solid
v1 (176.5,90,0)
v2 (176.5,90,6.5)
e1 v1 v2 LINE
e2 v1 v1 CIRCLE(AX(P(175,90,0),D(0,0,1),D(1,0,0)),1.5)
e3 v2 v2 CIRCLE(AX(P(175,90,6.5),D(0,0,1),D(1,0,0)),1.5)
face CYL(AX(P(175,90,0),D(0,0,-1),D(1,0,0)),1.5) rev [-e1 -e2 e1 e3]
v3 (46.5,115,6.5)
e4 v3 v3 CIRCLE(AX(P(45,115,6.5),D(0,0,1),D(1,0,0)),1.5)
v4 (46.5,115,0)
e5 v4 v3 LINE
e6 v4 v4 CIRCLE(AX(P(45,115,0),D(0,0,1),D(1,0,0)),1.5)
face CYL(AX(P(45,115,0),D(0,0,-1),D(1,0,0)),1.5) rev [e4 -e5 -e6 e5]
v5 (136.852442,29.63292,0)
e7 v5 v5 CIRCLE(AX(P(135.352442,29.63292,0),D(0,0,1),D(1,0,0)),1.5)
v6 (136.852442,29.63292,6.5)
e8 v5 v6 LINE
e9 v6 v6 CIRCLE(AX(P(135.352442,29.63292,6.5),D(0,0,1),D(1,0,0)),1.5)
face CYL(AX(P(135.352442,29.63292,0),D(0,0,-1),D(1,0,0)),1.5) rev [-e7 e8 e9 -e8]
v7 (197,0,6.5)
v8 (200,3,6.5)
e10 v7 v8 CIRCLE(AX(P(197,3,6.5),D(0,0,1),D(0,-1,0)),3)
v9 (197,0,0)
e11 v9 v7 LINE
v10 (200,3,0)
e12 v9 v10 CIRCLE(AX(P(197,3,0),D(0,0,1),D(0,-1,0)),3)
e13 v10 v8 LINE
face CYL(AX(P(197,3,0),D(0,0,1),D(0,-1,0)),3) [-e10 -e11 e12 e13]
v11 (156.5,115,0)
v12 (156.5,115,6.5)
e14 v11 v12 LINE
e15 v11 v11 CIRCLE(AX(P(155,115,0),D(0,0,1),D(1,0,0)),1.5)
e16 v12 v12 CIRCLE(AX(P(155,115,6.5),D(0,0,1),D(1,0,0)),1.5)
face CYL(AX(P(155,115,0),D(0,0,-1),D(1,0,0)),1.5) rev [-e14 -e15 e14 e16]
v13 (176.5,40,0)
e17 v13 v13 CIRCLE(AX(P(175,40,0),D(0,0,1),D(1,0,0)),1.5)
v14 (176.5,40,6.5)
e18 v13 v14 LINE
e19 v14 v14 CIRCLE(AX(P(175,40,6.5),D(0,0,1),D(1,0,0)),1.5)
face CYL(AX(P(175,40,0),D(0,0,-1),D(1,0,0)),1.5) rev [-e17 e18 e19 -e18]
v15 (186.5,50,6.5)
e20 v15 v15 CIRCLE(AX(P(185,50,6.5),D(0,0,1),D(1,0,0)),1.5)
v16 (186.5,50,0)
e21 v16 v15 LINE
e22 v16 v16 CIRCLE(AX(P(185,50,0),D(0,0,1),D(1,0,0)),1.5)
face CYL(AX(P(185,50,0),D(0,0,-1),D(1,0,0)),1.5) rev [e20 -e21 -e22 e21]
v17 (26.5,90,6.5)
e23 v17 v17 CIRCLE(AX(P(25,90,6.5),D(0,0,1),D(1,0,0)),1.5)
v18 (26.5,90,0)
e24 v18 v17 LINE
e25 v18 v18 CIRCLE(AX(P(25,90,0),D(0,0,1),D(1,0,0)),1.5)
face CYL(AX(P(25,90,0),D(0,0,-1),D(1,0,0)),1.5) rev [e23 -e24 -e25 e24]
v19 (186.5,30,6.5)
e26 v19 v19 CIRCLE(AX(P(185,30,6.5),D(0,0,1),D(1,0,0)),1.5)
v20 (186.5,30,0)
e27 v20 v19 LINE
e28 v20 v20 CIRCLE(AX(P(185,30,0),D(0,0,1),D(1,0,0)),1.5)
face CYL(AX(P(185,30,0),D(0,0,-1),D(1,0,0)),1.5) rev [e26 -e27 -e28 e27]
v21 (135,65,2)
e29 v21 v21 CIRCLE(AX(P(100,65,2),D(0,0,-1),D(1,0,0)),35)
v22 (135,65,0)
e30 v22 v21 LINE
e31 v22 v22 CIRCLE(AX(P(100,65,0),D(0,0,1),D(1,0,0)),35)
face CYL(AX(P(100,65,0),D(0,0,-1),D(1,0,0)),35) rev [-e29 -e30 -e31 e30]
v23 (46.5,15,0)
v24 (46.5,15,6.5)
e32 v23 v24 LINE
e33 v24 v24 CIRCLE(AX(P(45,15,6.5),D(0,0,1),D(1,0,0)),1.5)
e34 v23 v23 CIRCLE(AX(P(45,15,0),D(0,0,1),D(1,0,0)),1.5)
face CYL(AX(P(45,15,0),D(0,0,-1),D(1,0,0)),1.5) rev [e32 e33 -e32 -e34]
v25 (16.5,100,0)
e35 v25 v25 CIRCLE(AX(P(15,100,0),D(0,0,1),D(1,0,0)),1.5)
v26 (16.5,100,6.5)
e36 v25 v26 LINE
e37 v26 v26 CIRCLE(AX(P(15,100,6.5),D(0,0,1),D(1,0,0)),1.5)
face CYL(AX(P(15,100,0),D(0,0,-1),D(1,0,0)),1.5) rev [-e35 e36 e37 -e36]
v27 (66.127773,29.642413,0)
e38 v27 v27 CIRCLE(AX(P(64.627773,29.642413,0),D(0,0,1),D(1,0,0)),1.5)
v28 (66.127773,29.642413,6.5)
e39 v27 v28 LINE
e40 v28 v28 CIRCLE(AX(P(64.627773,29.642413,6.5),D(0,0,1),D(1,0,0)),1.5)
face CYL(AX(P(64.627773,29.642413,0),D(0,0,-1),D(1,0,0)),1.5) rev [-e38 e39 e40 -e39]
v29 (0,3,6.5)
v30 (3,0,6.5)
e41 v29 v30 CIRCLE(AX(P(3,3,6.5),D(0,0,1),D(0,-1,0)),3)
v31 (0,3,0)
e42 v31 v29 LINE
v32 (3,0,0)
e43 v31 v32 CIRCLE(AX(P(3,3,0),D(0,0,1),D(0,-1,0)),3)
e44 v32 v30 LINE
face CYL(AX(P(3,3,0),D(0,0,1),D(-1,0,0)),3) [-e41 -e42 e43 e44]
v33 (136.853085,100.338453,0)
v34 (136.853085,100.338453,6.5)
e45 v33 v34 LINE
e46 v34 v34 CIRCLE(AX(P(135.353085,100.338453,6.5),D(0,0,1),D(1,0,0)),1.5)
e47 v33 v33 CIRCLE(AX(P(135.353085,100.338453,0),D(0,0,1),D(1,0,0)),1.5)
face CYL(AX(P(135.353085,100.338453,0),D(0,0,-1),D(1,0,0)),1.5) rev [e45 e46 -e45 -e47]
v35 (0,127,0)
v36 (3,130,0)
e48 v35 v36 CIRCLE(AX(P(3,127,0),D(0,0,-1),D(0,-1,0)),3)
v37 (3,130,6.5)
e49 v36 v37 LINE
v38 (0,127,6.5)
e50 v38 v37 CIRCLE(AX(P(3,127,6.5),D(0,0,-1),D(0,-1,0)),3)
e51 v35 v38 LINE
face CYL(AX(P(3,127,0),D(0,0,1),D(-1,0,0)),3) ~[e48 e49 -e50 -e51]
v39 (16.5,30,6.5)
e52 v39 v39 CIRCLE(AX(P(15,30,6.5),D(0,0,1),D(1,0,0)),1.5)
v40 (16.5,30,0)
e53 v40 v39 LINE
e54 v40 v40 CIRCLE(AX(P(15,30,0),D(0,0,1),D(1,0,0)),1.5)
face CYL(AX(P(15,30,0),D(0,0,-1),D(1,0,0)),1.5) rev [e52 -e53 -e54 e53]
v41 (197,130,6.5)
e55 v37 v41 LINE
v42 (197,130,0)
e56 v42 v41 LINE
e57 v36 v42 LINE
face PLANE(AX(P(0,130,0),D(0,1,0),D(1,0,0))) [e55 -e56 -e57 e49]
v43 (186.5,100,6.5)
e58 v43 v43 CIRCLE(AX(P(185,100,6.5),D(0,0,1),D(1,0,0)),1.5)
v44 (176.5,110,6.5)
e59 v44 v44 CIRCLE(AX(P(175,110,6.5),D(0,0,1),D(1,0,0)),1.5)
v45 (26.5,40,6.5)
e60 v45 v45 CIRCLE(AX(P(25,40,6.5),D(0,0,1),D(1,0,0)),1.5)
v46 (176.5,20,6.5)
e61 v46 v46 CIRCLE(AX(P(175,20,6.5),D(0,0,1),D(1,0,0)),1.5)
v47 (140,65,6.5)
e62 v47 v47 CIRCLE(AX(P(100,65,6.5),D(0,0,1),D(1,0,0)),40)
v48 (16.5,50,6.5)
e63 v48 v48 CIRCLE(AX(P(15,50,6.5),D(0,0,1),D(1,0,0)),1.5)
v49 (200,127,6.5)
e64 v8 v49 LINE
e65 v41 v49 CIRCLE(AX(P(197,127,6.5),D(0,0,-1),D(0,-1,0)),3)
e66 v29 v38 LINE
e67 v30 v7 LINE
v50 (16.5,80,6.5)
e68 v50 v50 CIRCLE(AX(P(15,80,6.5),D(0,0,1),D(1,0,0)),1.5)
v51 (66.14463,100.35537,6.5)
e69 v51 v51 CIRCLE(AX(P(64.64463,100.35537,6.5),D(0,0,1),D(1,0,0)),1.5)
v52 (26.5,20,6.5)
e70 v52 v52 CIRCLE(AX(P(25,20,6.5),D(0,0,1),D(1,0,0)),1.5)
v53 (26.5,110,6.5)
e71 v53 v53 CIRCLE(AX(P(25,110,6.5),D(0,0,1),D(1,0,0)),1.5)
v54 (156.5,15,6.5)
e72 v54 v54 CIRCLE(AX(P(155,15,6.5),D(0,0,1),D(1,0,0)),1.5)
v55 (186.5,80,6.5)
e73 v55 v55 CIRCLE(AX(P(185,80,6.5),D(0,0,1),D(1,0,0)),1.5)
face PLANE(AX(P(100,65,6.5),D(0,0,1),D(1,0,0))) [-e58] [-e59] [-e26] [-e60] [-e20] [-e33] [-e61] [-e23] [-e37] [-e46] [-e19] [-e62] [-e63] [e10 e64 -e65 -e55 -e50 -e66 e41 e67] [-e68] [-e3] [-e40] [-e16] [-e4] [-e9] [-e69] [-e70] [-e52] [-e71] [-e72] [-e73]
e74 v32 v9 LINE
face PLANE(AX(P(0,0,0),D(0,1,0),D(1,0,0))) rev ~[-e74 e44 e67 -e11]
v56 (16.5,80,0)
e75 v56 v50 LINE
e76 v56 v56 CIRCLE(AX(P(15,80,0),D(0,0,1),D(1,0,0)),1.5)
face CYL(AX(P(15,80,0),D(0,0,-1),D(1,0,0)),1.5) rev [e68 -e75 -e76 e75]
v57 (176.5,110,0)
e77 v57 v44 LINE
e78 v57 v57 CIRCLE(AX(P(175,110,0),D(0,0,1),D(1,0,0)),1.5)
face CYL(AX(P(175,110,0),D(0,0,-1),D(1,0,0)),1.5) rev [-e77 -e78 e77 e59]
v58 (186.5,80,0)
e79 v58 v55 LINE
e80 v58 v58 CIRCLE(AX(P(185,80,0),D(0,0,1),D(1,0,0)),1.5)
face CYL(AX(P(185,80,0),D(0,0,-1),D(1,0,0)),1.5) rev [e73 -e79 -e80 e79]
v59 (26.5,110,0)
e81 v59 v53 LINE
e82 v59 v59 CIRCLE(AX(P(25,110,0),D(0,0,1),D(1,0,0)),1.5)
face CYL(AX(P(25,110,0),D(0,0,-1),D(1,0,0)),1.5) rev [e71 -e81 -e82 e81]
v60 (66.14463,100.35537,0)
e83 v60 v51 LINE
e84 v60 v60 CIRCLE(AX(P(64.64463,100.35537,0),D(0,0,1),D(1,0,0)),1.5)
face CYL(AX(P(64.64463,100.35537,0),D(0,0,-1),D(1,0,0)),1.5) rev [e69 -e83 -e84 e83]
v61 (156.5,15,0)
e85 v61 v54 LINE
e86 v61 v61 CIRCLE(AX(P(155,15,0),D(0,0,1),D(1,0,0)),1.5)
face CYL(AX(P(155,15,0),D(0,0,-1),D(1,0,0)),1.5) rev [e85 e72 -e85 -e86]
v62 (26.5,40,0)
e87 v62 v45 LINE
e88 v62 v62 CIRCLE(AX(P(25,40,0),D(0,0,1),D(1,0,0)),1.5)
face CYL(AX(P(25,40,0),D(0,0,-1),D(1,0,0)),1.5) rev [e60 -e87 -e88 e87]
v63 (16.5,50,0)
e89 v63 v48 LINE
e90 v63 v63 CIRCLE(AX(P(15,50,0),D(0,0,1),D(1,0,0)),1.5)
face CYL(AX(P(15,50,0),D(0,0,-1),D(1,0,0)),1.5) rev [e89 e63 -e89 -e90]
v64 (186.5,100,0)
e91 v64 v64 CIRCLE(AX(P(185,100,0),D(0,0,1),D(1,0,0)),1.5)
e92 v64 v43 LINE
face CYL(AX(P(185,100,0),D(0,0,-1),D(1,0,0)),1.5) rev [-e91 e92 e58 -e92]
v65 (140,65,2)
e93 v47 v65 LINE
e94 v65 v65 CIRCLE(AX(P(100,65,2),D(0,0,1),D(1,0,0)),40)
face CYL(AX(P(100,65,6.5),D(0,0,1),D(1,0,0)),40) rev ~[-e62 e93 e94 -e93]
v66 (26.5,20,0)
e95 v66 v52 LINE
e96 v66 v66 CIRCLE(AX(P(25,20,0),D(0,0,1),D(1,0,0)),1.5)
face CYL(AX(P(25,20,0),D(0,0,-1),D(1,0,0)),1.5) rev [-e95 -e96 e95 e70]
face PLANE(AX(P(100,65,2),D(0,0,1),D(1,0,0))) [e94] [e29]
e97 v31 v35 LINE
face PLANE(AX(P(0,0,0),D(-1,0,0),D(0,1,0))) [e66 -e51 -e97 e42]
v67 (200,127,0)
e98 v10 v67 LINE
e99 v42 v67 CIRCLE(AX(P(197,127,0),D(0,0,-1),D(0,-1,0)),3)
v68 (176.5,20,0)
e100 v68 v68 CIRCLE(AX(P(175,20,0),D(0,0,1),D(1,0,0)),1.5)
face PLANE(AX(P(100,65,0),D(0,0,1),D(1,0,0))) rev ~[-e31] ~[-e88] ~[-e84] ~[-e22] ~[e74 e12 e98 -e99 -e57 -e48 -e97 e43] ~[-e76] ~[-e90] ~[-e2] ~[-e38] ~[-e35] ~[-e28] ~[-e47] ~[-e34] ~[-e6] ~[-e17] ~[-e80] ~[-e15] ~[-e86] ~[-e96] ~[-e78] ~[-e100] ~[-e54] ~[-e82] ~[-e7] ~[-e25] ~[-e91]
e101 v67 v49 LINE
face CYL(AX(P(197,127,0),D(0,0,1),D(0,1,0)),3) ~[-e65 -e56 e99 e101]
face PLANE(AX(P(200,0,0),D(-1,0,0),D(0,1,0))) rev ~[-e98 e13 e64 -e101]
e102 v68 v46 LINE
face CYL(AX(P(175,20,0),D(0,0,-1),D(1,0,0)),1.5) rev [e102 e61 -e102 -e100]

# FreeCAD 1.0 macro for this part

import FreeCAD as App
import Part
import Sketcher
from FreeCAD import Vector


def edges_at(feature, points):
    """Names of the edges that pass closest to the given points."""
    edges = feature.Shape.Edges
    near = lambda p: min(range(len(edges)), key=lambda i: edges[i].distToShape(Part.Vertex(*p))[0])
    return sorted({f"Edge{near(p) + 1}" for p in points})

doc = App.newDocument("Part")
params = doc.addObject("Spreadsheet::Sheet", "Params")
for row, (alias, value) in enumerate([
    ("sketch1_diameter", "3 mm"),
    ("sketch1_diameter2", "70 mm"),
    ("sketch1_width", "200 mm"),
    ("sketch1_height", "130 mm"),
    ("pad1_length", "6.5 mm"),
    ("sketch2_diameter", "80 mm"),
    ("pocket1_length", "4.5 mm"),
    ("fillet_radius", "3 mm"),
], start=1):
    params.set(f"A{row}", alias)
    params.set(f"B{row}", "=" + value)
    params.setAlias(f"B{row}", alias)

body = doc.addObject("PartDesign::Body", "Body")

sketch1 = body.newObject("Sketcher::SketchObject", "Sketch")
sketch1.AttachmentSupport = (doc.getObject("XY_Plane"), [""])
sketch1.MapMode = "FlatFace"
sketch1.addGeometry([
    Part.LineSegment(Vector(0, 130, 0), Vector(0, 0, 0)),
    Part.LineSegment(Vector(0, 0, 0), Vector(200, 0, 0)),
    Part.LineSegment(Vector(200, 0, 0), Vector(200, 130, 0)),
    Part.LineSegment(Vector(200, 130, 0), Vector(0, 130, 0)),
    Part.Circle(Vector(25, 20, 0), Vector(0, 0, 1), 1.5),
    Part.Circle(Vector(45, 15, 0), Vector(0, 0, 1), 1.5),
    Part.Circle(Vector(15, 30, 0), Vector(0, 0, 1), 1.5),
    Part.Circle(Vector(64.627773, 29.642413, 0), Vector(0, 0, 1), 1.5),
    Part.Circle(Vector(25, 40, 0), Vector(0, 0, 1), 1.5),
    Part.Circle(Vector(15, 50, 0), Vector(0, 0, 1), 1.5),
    Part.Circle(Vector(135.352442, 29.63292, 0), Vector(0, 0, 1), 1.5),
    Part.Circle(Vector(155, 15, 0), Vector(0, 0, 1), 1.5),
    Part.Circle(Vector(175, 20, 0), Vector(0, 0, 1), 1.5),
    Part.Circle(Vector(185, 30, 0), Vector(0, 0, 1), 1.5),
    Part.Circle(Vector(100, 65, 0), Vector(0, 0, 1), 35),
    Part.Circle(Vector(175, 40, 0), Vector(0, 0, 1), 1.5),
    Part.Circle(Vector(185, 50, 0), Vector(0, 0, 1), 1.5),
    Part.Circle(Vector(15, 80, 0), Vector(0, 0, 1), 1.5),
    Part.Circle(Vector(25, 90, 0), Vector(0, 0, 1), 1.5),
    Part.Circle(Vector(15, 100, 0), Vector(0, 0, 1), 1.5),
    Part.Circle(Vector(25, 110, 0), Vector(0, 0, 1), 1.5),
    Part.Circle(Vector(45, 115, 0), Vector(0, 0, 1), 1.5),
    Part.Circle(Vector(64.64463, 100.35537, 0), Vector(0, 0, 1), 1.5),
    Part.Circle(Vector(185, 80, 0), Vector(0, 0, 1), 1.5),
    Part.Circle(Vector(175, 90, 0), Vector(0, 0, 1), 1.5),
    Part.Circle(Vector(135.353085, 100.338453, 0), Vector(0, 0, 1), 1.5),
    Part.Circle(Vector(185, 100, 0), Vector(0, 0, 1), 1.5),
    Part.Circle(Vector(155, 115, 0), Vector(0, 0, 1), 1.5),
    Part.Circle(Vector(175, 110, 0), Vector(0, 0, 1), 1.5),
], False)
sketch1.addConstraint([
    Sketcher.Constraint("Coincident", 0, 2, 1, 1),
    Sketcher.Constraint("Coincident", 1, 2, 2, 1),
    Sketcher.Constraint("Coincident", 2, 2, 3, 1),
    Sketcher.Constraint("Coincident", 3, 2, 0, 1),
    Sketcher.Constraint("Vertical", 0),
    Sketcher.Constraint("Horizontal", 1),
    Sketcher.Constraint("Vertical", 2),
    Sketcher.Constraint("Horizontal", 3),
    Sketcher.Constraint("Coincident", 0, 2, -1, 1),
    Sketcher.Constraint("Equal", 4, 5),
    Sketcher.Constraint("Equal", 5, 6),
    Sketcher.Constraint("Equal", 6, 7),
    Sketcher.Constraint("Equal", 7, 8),
    Sketcher.Constraint("Equal", 8, 9),
    Sketcher.Constraint("Equal", 9, 10),
    Sketcher.Constraint("Equal", 10, 11),
    Sketcher.Constraint("Equal", 11, 12),
    Sketcher.Constraint("Equal", 12, 13),
    Sketcher.Constraint("Equal", 13, 15),
    Sketcher.Constraint("Equal", 15, 16),
    Sketcher.Constraint("Equal", 16, 17),
    Sketcher.Constraint("Equal", 17, 18),
    Sketcher.Constraint("Equal", 18, 19),
    Sketcher.Constraint("Equal", 19, 20),
    Sketcher.Constraint("Equal", 20, 21),
    Sketcher.Constraint("Equal", 21, 22),
    Sketcher.Constraint("Equal", 22, 23),
    Sketcher.Constraint("Equal", 23, 24),
    Sketcher.Constraint("Equal", 24, 25),
    Sketcher.Constraint("Equal", 25, 26),
    Sketcher.Constraint("Equal", 26, 27),
    Sketcher.Constraint("Equal", 27, 28),
    Sketcher.Constraint("Horizontal", 5, 3, 11, 3),
    Sketcher.Constraint("Horizontal", 4, 3, 12, 3),
    Sketcher.Constraint("Horizontal", 6, 3, 13, 3),
    Sketcher.Constraint("Horizontal", 8, 3, 15, 3),
    Sketcher.Constraint("Horizontal", 9, 3, 16, 3),
    Sketcher.Constraint("Horizontal", 17, 3, 23, 3),
    Sketcher.Constraint("Horizontal", 18, 3, 24, 3),
    Sketcher.Constraint("Horizontal", 19, 3, 26, 3),
    Sketcher.Constraint("Horizontal", 21, 3, 27, 3),
    Sketcher.Constraint("Horizontal", 20, 3, 28, 3),
    Sketcher.Constraint("Vertical", 4, 3, 8, 3),
    Sketcher.Constraint("Vertical", 6, 3, 9, 3),
    Sketcher.Constraint("Vertical", 12, 3, 15, 3),
    Sketcher.Constraint("Vertical", 13, 3, 16, 3),
    Sketcher.Constraint("Vertical", 9, 3, 17, 3),
    Sketcher.Constraint("Vertical", 8, 3, 18, 3),
    Sketcher.Constraint("Vertical", 17, 3, 19, 3),
    Sketcher.Constraint("Vertical", 18, 3, 20, 3),
    Sketcher.Constraint("Vertical", 5, 3, 21, 3),
    Sketcher.Constraint("Vertical", 16, 3, 23, 3),
    Sketcher.Constraint("Vertical", 15, 3, 24, 3),
    Sketcher.Constraint("Vertical", 23, 3, 26, 3),
    Sketcher.Constraint("Vertical", 11, 3, 27, 3),
    Sketcher.Constraint("Vertical", 24, 3, 28, 3),
    Sketcher.Constraint("Diameter", 4, 3.0),
    Sketcher.Constraint("Diameter", 14, 70.0),
    Sketcher.Constraint("DistanceX", 1, 1, 1, 2, 200.0),
    Sketcher.Constraint("DistanceY", 0, 2, 0, 1, 130.0),
    Sketcher.Constraint("DistanceX", -1, 1, 4, 3, 25.0),
    Sketcher.Constraint("DistanceY", -1, 1, 4, 3, 20.0),
    Sketcher.Constraint("DistanceX", -1, 1, 5, 3, 45.0),
    Sketcher.Constraint("DistanceY", -1, 1, 5, 3, 15.0),
    Sketcher.Constraint("DistanceX", -1, 1, 6, 3, 15.0),
    Sketcher.Constraint("DistanceY", -1, 1, 6, 3, 30.0),
    Sketcher.Constraint("DistanceY", -1, 1, 8, 3, 40.0),
    Sketcher.Constraint("DistanceY", -1, 1, 9, 3, 50.0),
    Sketcher.Constraint("DistanceX", -1, 1, 11, 3, 155.0),
    Sketcher.Constraint("DistanceX", -1, 1, 12, 3, 175.0),
    Sketcher.Constraint("DistanceX", -1, 1, 13, 3, 185.0),
    Sketcher.Constraint("DistanceX", -1, 1, 14, 3, 100.0),
    Sketcher.Constraint("DistanceY", -1, 1, 14, 3, 65.0),
    Sketcher.Constraint("DistanceY", -1, 1, 17, 3, 80.0),
    Sketcher.Constraint("DistanceY", -1, 1, 18, 3, 90.0),
    Sketcher.Constraint("DistanceY", -1, 1, 19, 3, 100.0),
    Sketcher.Constraint("DistanceY", -1, 1, 20, 3, 110.0),
    Sketcher.Constraint("DistanceY", -1, 1, 21, 3, 115.0),
    Sketcher.Constraint("DistanceX", -1, 1, 10, 3, 135.352442),
    Sketcher.Constraint("DistanceY", -1, 1, 10, 3, 29.63292),
    Sketcher.Constraint("DistanceX", -1, 1, 22, 3, 64.64463),
    Sketcher.Constraint("DistanceY", -1, 1, 22, 3, 100.35537),
    Sketcher.Constraint("DistanceX", 7, 3, 10, 3, 70.724669),
    Sketcher.Constraint("DistanceY", -1, 1, 7, 3, 29.642413),
    Sketcher.Constraint("DistanceX", -1, 1, 25, 3, 135.353085),
    Sketcher.Constraint("DistanceY", -1, 1, 25, 3, 100.338453),
])
sketch1.setExpression("Constraints[56]", "Params.sketch1_diameter")
sketch1.setExpression("Constraints[57]", "Params.sketch1_diameter2")
sketch1.setExpression("Constraints[58]", "Params.sketch1_width")
sketch1.setExpression("Constraints[59]", "Params.sketch1_height")
pad1 = body.newObject("PartDesign::Pad", "Pad")
pad1.Profile = sketch1
pad1.setExpression("Length", "Params.pad1_length")

sketch2 = body.newObject("Sketcher::SketchObject", "Sketch001")
sketch2.AttachmentSupport = (doc.getObject("XY_Plane"), [""])
sketch2.MapMode = "FlatFace"
sketch2.AttachmentOffset = App.Placement(Vector(0, 0, 6.5), App.Rotation())
sketch2.addGeometry(Part.Circle(Vector(100, 65, 0), Vector(0, 0, 1), 40), False)
sketch2.addConstraint([
    Sketcher.Constraint("Diameter", 0, 80.0),
    Sketcher.Constraint("DistanceX", -1, 1, 0, 3, 100.0),
    Sketcher.Constraint("DistanceY", -1, 1, 0, 3, 65.0),
])
sketch2.setExpression("Constraints[0]", "Params.sketch2_diameter")
pocket1 = body.newObject("PartDesign::Pocket", "Pocket")
pocket1.Profile = sketch2
pocket1.setExpression("Length", "Params.pocket1_length")
doc.recompute()

fillet = body.newObject("PartDesign::Fillet", "Fillet")
fillet.Base = (pocket1, edges_at(pocket1, [
    (200, 0, 3.25),
    (200, 130, 3.25),
    (0, 0, 3.25),
    (0, 130, 3.25),
]))
fillet.setExpression("Radius", "Params.fillet_radius")

doc.recompute()
